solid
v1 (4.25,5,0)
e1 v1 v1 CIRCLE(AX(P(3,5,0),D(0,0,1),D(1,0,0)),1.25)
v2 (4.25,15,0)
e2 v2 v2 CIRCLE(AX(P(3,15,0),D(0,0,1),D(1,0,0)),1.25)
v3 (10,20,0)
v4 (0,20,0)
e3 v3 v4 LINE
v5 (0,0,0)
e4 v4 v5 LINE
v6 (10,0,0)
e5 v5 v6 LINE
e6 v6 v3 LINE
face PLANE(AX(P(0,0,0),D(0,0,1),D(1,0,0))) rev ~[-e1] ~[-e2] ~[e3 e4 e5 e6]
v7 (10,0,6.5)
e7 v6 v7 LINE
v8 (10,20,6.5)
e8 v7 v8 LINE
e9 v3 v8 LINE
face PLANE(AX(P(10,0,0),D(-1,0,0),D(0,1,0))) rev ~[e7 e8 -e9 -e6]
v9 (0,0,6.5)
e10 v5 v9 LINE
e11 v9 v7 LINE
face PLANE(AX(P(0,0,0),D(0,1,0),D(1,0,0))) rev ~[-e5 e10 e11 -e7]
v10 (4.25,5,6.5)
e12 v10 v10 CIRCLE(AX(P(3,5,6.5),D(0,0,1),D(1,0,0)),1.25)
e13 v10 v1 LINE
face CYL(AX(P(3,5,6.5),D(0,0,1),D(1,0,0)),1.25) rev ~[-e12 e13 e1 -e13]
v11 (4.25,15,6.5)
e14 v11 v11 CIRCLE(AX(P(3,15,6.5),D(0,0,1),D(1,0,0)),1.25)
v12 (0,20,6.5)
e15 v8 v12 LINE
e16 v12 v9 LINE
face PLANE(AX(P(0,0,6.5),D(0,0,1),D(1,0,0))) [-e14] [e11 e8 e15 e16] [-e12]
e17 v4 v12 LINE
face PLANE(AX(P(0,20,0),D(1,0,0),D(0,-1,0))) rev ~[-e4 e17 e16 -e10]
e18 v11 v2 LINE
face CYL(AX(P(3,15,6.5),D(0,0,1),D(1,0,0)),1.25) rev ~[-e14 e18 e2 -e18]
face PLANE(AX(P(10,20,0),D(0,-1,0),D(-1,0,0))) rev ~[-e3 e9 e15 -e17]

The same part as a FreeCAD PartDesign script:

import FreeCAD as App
import Part
import Sketcher

V = App.Vector


def add_polygon(sketch, points):
    """Adds a closed chain of lines whose ends are joined by coincident constraints."""
    first, n = sketch.GeometryCount, len(points)
    for a, b in zip(points, points[1:] + points[:1]):
        sketch.addGeometry(Part.LineSegment(App.Vector(*a, 0), App.Vector(*b, 0)), False)
    for i in range(n):
        sketch.addConstraint(Sketcher.Constraint("Coincident", first + i, 2, first + (i + 1) % n, 1))

doc = App.newDocument("Part")
body = doc.addObject("PartDesign::Body", "Body")

# Sketch on XY plane
sketch1 = body.newObject("Sketcher::SketchObject", "Sketch")
sketch1.AttachmentSupport = (doc.getObject("XY_Plane"), [""])
sketch1.MapMode = "FlatFace"
add_polygon(sketch1, [(0, 20), (0, 0), (10, 0), (10, 20)])  # lines 0-3
sketch1.addConstraint([
    Sketcher.Constraint("Vertical", 0),
    Sketcher.Constraint("Horizontal", 1),
    Sketcher.Constraint("Vertical", 2),
    Sketcher.Constraint("Horizontal", 3),
    Sketcher.Constraint("Coincident", 0, 2, -1, 1),
    Sketcher.Constraint("DistanceX", 1, 1, 1, 2, 10.0),
    Sketcher.Constraint("DistanceY", 0, 2, 0, 1, 20.0),
])
pad1 = body.newObject("PartDesign::Pad", "Pad")
pad1.Profile = sketch1
pad1.Length = 6.5

# Sketch on XY plane
sketch2 = body.newObject("Sketcher::SketchObject", "Sketch001")
sketch2.AttachmentSupport = (doc.getObject("XY_Plane"), [""])
sketch2.MapMode = "FlatFace"
sketch2.AttachmentOffset = App.Placement(V(0, 0, 6.5), App.Rotation())
sketch2.addGeometry([
    Part.Circle(V(3, 15, 0), V(0, 0, 1), 1.2),
    Part.Circle(V(3, 5, 0), V(0, 0, 1), 1.2),
], False)
sketch2.addConstraint([
    Sketcher.Constraint("Equal", 0, 1),
    Sketcher.Constraint("Vertical", 0, 3, 1, 3),
    Sketcher.Constraint("Diameter", 0, 2.5),
    Sketcher.Constraint("DistanceX", -1, 1, 0, 3, 3.0),
    Sketcher.Constraint("DistanceY", -1, 1, 1, 3, 5.0),
    Sketcher.Constraint("DistanceY", -1, 1, 0, 3, 15.0),
])
pocket1 = body.newObject("PartDesign::Pocket", "Pocket")
pocket1.Profile = sketch2
pocket1.Type = "ThroughAll"

doc.recompute()
